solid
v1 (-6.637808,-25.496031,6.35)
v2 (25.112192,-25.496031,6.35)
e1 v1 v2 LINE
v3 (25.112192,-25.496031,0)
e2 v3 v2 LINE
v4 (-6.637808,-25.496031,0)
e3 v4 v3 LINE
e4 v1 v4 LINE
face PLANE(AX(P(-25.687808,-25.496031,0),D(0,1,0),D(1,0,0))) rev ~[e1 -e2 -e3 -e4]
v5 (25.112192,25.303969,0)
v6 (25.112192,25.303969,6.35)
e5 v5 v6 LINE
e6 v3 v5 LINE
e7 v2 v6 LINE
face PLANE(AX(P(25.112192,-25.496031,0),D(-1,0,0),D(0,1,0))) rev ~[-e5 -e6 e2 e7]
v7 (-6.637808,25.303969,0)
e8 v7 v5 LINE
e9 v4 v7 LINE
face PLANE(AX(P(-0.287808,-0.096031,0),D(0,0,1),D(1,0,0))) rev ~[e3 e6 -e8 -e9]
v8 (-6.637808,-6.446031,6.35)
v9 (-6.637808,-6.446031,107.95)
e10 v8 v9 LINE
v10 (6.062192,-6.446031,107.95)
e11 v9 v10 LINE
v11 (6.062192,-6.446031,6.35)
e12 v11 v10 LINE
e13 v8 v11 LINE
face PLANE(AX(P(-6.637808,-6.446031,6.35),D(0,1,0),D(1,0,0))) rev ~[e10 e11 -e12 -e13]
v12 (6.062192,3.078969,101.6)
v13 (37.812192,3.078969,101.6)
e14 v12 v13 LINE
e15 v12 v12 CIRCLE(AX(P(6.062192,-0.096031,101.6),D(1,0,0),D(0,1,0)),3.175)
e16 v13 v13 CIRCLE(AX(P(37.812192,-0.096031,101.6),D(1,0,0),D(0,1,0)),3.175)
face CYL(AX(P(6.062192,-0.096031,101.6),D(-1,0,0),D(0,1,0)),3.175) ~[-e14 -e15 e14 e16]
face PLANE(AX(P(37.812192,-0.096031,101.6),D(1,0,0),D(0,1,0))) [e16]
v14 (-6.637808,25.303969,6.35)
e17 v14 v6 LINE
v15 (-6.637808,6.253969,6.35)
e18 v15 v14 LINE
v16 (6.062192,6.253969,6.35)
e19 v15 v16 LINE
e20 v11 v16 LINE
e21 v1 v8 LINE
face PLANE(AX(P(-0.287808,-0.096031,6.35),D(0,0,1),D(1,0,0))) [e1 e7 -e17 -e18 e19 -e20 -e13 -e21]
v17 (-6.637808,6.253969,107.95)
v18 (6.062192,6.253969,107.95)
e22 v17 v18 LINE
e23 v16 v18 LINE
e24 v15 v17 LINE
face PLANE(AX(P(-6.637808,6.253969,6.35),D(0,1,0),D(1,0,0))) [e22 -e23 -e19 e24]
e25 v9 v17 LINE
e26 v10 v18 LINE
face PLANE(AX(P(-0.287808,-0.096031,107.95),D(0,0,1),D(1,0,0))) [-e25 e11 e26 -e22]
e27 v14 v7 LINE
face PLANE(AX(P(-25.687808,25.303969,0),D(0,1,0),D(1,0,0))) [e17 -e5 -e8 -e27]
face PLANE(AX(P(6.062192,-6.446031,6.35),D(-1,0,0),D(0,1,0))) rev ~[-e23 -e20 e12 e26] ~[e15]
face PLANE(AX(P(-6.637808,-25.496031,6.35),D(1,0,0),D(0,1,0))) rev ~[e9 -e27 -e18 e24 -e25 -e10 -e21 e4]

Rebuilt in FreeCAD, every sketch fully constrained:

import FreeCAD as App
import Part
import Sketcher
from FreeCAD import Vector
Q = App.Units.Quantity

doc = App.newDocument("Part")
body = doc.addObject("PartDesign::Body", "Body")

# Sketch on XY plane
sketch1 = body.newObject("Sketcher::SketchObject", "Sketch")
sketch1.AttachmentSupport = (doc.getObject("XY_Plane"), [""])
sketch1.MapMode = "FlatFace"
sketch1.addGeometry(Part.LineSegment(Vector(-26, 25, 0), Vector(-26, -25, 0)), False)
sketch1.addGeometry(Part.LineSegment(Vector(-26, -25, 0), Vector(25, -25, 0)), False)
sketch1.addGeometry(Part.LineSegment(Vector(25, -25, 0), Vector(25, 25, 0)), False)
sketch1.addGeometry(Part.LineSegment(Vector(25, 25, 0), Vector(-26, 25, 0)), False)
sketch1.addConstraint(Sketcher.Constraint("Coincident", 0, 2, 1, 1))
sketch1.addConstraint(Sketcher.Constraint("Coincident", 1, 2, 2, 1))
sketch1.addConstraint(Sketcher.Constraint("Coincident", 2, 2, 3, 1))
sketch1.addConstraint(Sketcher.Constraint("Coincident", 3, 2, 0, 1))
sketch1.addConstraint(Sketcher.Constraint("Vertical", 0))
sketch1.addConstraint(Sketcher.Constraint("Horizontal", 1))
sketch1.addConstraint(Sketcher.Constraint("Vertical", 2))
sketch1.addConstraint(Sketcher.Constraint("Horizontal", 3))
sketch1.addConstraint(Sketcher.Constraint("Equal", 3, 0))
sketch1.addConstraint(Sketcher.Constraint("DistanceX", 1, 1, 1, 2, Q("2 in")))
sketch1.addConstraint(Sketcher.Constraint("DistanceX", 0, 2, -1, 1, 25.687808))
sketch1.addConstraint(Sketcher.Constraint("DistanceY", 0, 2, -1, 1, 25.496031))
pad1 = body.newObject("PartDesign::Pad", "Pad")
pad1.Profile = sketch1
pad1.Length = Q("0.25 in")

# Sketch on XY plane
sketch2 = body.newObject("Sketcher::SketchObject", "Sketch001")
sketch2.AttachmentSupport = (doc.getObject("XY_Plane"), [""])
sketch2.MapMode = "FlatFace"
sketch2.AttachmentOffset = App.Placement(Vector(0, 0, 0.25 * 25.4), App.Rotation())
sketch2.addGeometry(Part.LineSegment(Vector(-7, 6, 0), Vector(-7, -6, 0)), False)
sketch2.addGeometry(Part.LineSegment(Vector(-7, -6, 0), Vector(6, -6, 0)), False)
sketch2.addGeometry(Part.LineSegment(Vector(6, -6, 0), Vector(6, 6, 0)), False)
sketch2.addGeometry(Part.LineSegment(Vector(6, 6, 0), Vector(-7, 6, 0)), False)
sketch2.addConstraint(Sketcher.Constraint("Coincident", 0, 2, 1, 1))
sketch2.addConstraint(Sketcher.Constraint("Coincident", 1, 2, 2, 1))
sketch2.addConstraint(Sketcher.Constraint("Coincident", 2, 2, 3, 1))
sketch2.addConstraint(Sketcher.Constraint("Coincident", 3, 2, 0, 1))
sketch2.addConstraint(Sketcher.Constraint("Vertical", 0))
sketch2.addConstraint(Sketcher.Constraint("Horizontal", 1))
sketch2.addConstraint(Sketcher.Constraint("Vertical", 2))
sketch2.addConstraint(Sketcher.Constraint("Horizontal", 3))
sketch2.addConstraint(Sketcher.Constraint("Equal", 3, 0))
sketch2.addConstraint(Sketcher.Constraint("DistanceX", 1, 1, 1, 2, Q("0.5 in")))
sketch2.addConstraint(Sketcher.Constraint("DistanceY", 0, 2, -1, 1, 6.446031))
sketch2.addConstraint(Sketcher.Constraint("DistanceX", -1, 1, 1, 2, 6.062192))
pad2 = body.newObject("PartDesign::Pad", "Pad001")
pad2.Profile = sketch2
pad2.Length = Q("4 in")

# Sketch on YZ plane
sketch3 = body.newObject("Sketcher::SketchObject", "Sketch002")
sketch3.AttachmentSupport = (doc.getObject("YZ_Plane"), [""])
sketch3.MapMode = "FlatFace"
sketch3.AttachmentOffset = App.Placement(Vector(0, 0, 6.062192), App.Rotation())
sketch3.addGeometry(Part.Circle(Vector(-0.1, 101.6, 0), Vector(0, 0, 1), 3.2), False)
sketch3.addConstraint(Sketcher.Constraint("Diameter", 0, Q("0.25 in")))
sketch3.addConstraint(Sketcher.Constraint("DistanceY", -1, 1, 0, 3, Q("4 in")))
sketch3.addConstraint(Sketcher.Constraint("DistanceX", 0, 3, -1, 1, 0.096031))
pad3 = body.newObject("PartDesign::Pad", "Pad002")
pad3.Profile = sketch3
pad3.Length = Q("1.25 in")

# Sketch on XY plane
sketch4 = body.newObject("Sketcher::SketchObject", "Sketch003")
sketch4.AttachmentSupport = (doc.getObject("XY_Plane"), [""])
sketch4.MapMode = "FlatFace"
sketch4.AttachmentOffset = App.Placement(Vector(0, 0, 0.25 * 25.4), App.Rotation())
sketch4.addGeometry(Part.LineSegment(Vector(-7, 25, 0), Vector(-26, 25, 0)), False)
sketch4.addGeometry(Part.LineSegment(Vector(-26, 25, 0), Vector(-26, -25, 0)), False)
sketch4.addGeometry(Part.LineSegment(Vector(-26, -25, 0), Vector(-7, -25, 0)), False)
sketch4.addGeometry(Part.LineSegment(Vector(-7, -25, 0), Vector(-7, 25, 0)), False)
sketch4.addConstraint(Sketcher.Constraint("Coincident", 0, 2, 1, 1))
sketch4.addConstraint(Sketcher.Constraint("Coincident", 1, 2, 2, 1))
sketch4.addConstraint(Sketcher.Constraint("Coincident", 2, 2, 3, 1))
sketch4.addConstraint(Sketcher.Constraint("Coincident", 3, 2, 0, 1))
sketch4.addConstraint(Sketcher.Constraint("Horizontal", 0))
sketch4.addConstraint(Sketcher.Constraint("Vertical", 1))
sketch4.addConstraint(Sketcher.Constraint("Horizontal", 2))
sketch4.addConstraint(Sketcher.Constraint("Vertical", 3))
sketch4.addConstraint(Sketcher.Constraint("DistanceY", 1, 2, 1, 1, Q("2 in")))
sketch4.addConstraint(Sketcher.Constraint("DistanceX", 0, 2, 0, 1, Q("0.75 in")))
sketch4.addConstraint(Sketcher.Constraint("DistanceX", 0, 2, -1, 1, 25.687808))
sketch4.addConstraint(Sketcher.Constraint("DistanceY", -1, 1, 0, 2, 25.303969))
pocket1 = body.newObject("PartDesign::Pocket", "Pocket")
pocket1.Profile = sketch4
pocket1.Length = Q("1 in")

doc.recompute()
